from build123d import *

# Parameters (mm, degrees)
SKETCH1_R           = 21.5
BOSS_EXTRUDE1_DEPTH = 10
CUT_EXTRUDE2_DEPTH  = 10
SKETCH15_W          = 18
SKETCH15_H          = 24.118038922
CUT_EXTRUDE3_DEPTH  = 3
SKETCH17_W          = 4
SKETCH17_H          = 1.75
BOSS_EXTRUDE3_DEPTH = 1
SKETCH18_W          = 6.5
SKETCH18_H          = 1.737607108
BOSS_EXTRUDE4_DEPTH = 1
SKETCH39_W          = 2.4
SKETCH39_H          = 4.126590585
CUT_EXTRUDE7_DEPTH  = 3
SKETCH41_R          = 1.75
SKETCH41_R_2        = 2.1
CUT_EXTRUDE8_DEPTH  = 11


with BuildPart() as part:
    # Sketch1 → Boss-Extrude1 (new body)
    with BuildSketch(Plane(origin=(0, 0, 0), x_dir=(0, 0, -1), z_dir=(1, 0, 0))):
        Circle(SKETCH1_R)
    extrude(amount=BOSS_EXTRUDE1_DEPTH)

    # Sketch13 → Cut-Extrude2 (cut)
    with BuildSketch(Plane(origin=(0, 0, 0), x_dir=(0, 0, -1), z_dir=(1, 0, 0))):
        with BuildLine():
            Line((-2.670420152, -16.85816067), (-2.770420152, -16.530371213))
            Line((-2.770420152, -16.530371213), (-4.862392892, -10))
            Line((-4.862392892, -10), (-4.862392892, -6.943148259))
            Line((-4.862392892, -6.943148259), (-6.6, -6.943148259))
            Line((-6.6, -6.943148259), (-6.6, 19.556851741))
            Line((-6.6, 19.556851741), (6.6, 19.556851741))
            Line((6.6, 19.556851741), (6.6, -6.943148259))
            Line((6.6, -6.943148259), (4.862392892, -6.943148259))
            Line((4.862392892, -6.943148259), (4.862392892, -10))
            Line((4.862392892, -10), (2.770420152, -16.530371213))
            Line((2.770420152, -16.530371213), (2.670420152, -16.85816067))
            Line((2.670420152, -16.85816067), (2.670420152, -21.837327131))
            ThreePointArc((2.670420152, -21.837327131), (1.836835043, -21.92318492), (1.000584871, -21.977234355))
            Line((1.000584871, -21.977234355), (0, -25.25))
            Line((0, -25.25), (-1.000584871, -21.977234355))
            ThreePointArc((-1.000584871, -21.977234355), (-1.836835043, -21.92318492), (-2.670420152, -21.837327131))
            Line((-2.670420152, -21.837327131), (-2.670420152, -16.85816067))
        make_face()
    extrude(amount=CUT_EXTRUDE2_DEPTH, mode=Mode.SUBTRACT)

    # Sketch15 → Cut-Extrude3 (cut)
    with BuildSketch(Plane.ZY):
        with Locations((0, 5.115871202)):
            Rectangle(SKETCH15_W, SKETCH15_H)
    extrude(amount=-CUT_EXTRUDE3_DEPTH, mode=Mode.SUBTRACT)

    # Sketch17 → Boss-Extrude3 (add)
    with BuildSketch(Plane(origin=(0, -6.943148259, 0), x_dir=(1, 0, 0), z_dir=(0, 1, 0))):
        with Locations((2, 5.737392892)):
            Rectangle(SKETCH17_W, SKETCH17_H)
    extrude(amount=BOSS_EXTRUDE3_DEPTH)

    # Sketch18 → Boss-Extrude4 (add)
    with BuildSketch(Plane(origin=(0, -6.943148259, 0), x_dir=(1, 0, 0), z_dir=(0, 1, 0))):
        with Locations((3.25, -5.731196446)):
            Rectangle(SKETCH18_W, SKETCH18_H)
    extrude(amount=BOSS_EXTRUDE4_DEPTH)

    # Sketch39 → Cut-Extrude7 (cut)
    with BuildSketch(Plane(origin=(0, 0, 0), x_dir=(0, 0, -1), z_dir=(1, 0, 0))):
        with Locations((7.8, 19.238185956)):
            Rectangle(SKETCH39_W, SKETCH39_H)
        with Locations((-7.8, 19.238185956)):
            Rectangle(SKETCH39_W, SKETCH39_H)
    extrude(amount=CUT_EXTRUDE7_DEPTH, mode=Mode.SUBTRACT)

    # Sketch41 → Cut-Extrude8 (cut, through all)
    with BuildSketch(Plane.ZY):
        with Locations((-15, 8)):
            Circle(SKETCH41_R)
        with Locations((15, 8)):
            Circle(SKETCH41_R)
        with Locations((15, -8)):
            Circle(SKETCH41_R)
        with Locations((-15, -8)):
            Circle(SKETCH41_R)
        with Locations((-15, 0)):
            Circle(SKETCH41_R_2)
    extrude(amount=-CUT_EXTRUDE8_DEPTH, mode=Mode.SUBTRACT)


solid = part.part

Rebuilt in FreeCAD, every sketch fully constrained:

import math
import FreeCAD as App
import Part
import Sketcher
from FreeCAD import Vector
Q = App.Units.Quantity


def add_polygon(sketch, points):
    """Adds a closed chain of lines whose ends are joined by coincident constraints."""
    first, n = sketch.GeometryCount, len(points)
    for a, b in zip(points, points[1:] + points[:1]):
        sketch.addGeometry(Part.LineSegment(App.Vector(*a, 0), App.Vector(*b, 0)), False)
    for i in range(n):
        sketch.addConstraint(Sketcher.Constraint("Coincident", first + i, 2, first + (i + 1) % n, 1))

doc = App.newDocument("Part")
body = doc.addObject("PartDesign::Body", "Body")

# Sketch on YZ plane
sketch1 = body.newObject("Sketcher::SketchObject", "Sketch")
sketch1.AttachmentSupport = (doc.getObject("YZ_Plane"), [""])
sketch1.MapMode = "FlatFace"
sketch1.addGeometry(Part.Circle(Vector(0, 0, 0), Vector(0, 0, 1), 21.5), False)
sketch1.addConstraint([
    Sketcher.Constraint("Coincident", 0, 3, -1, 1),
    Sketcher.Constraint("Diameter", 0, 43.0),
])
pad1 = body.newObject("PartDesign::Pad", "Pad")
pad1.Profile = sketch1
pad1.Length = 10

# Sketch on YZ plane
sketch2 = body.newObject("Sketcher::SketchObject", "Sketch001")
sketch2.AttachmentSupport = (doc.getObject("YZ_Plane"), [""])
sketch2.MapMode = "FlatFace"
sketch2.addGeometry([
    Part.LineSegment(Vector(-16.530371, 2.77042, 0), Vector(-16.858161, 2.67042, 0)),  # 0
    Part.LineSegment(Vector(-16.858161, 2.67042, 0), Vector(-21.837327, 2.67042, 0)),  # 1
    Part.ArcOfCircle(Part.Circle(Vector(0, 0, 0), Vector(0, 0, 1), 22), math.radians(173.028089), math.radians(177.393224)),  # 2
    Part.LineSegment(Vector(-21.977234, 1.000585, 0), Vector(-25.25, 0, 0)),  # 3
    Part.LineSegment(Vector(-25.25, 0, 0), Vector(-21.977234, -1.000585, 0)),  # 4
    Part.ArcOfCircle(Part.Circle(Vector(0, 0, 0), Vector(0, 0, 1), 22), math.radians(-177.393224), math.radians(-173.028089)),  # 5
    Part.LineSegment(Vector(-21.837327, -2.67042, 0), Vector(-16.858161, -2.67042, 0)),  # 6
    Part.LineSegment(Vector(-16.858161, -2.67042, 0), Vector(-16.530371, -2.77042, 0)),  # 7
    Part.LineSegment(Vector(-16.530371, -2.77042, 0), Vector(-10, -4.862393, 0)),  # 8
    Part.LineSegment(Vector(-10, -4.862393, 0), Vector(-6.943148, -4.862393, 0)),  # 9
    Part.LineSegment(Vector(-6.943148, -4.862393, 0), Vector(-6.943148, -6.6, 0)),  # 10
    Part.LineSegment(Vector(-6.943148, -6.6, 0), Vector(19.556852, -6.6, 0)),  # 11
    Part.LineSegment(Vector(19.556852, -6.6, 0), Vector(19.556852, 6.6, 0)),  # 12
    Part.LineSegment(Vector(19.556852, 6.6, 0), Vector(-6.943148, 6.6, 0)),  # 13
    Part.LineSegment(Vector(-6.943148, 6.6, 0), Vector(-6.943148, 4.862393, 0)),  # 14
    Part.LineSegment(Vector(-6.943148, 4.862393, 0), Vector(-10, 4.862393, 0)),  # 15
    Part.LineSegment(Vector(-10, 4.862393, 0), Vector(-16.530371, 2.77042, 0)),  # 16
], False)
sketch2.addConstraint([
    Sketcher.Constraint("Coincident", 0, 2, 1, 1),
    Sketcher.Constraint("Coincident", 1, 2, 2, 1),
    Sketcher.Constraint("Coincident", 2, 2, 3, 1),
    Sketcher.Constraint("Coincident", 3, 2, 4, 1),
    Sketcher.Constraint("Coincident", 4, 2, 5, 1),
    Sketcher.Constraint("Coincident", 5, 2, 6, 1),
    Sketcher.Constraint("Coincident", 6, 2, 7, 1),
    Sketcher.Constraint("Coincident", 7, 2, 8, 1),
    Sketcher.Constraint("Coincident", 8, 2, 9, 1),
    Sketcher.Constraint("Coincident", 9, 2, 10, 1),
    Sketcher.Constraint("Coincident", 10, 2, 11, 1),
    Sketcher.Constraint("Coincident", 11, 2, 12, 1),
    Sketcher.Constraint("Coincident", 12, 2, 13, 1),
    Sketcher.Constraint("Coincident", 13, 2, 14, 1),
    Sketcher.Constraint("Coincident", 14, 2, 15, 1),
    Sketcher.Constraint("Coincident", 15, 2, 16, 1),
    Sketcher.Constraint("Coincident", 16, 2, 0, 1),
    Sketcher.Constraint("Horizontal", 1),
    Sketcher.Constraint("Horizontal", 6),
    Sketcher.Constraint("Horizontal", 9),
    Sketcher.Constraint("Vertical", 10),
    Sketcher.Constraint("Horizontal", 11),
    Sketcher.Constraint("Vertical", 12),
    Sketcher.Constraint("Horizontal", 13),
    Sketcher.Constraint("Vertical", 14),
    Sketcher.Constraint("Horizontal", 15),
    Sketcher.Constraint("Coincident", 2, 3, -1, 1),
    Sketcher.Constraint("Coincident", 5, 3, -1, 1),
    Sketcher.Constraint("Equal", 2, 5),
    Sketcher.Constraint("Symmetric", 0, 2, 6, 2, -1),
    Sketcher.Constraint("Symmetric", 10, 2, 13, 2, -1),
    Sketcher.Constraint("Symmetric", 8, 2, 15, 2, -1),
    Sketcher.Constraint("Symmetric", 7, 2, 16, 2, -1),
    Sketcher.Constraint("PointOnObject", 3, 2, -1),
    Sketcher.Constraint("Vertical", 2, 2, 4, 2),
    Sketcher.Constraint("Radius", 2, 22.0),
    Sketcher.Constraint("Angle", 3, Q("-163 deg")),
    Sketcher.Constraint("DistanceX", 11, 1, 11, 2, 26.5),
    Sketcher.Constraint("DistanceY", 12, 1, 12, 2, 13.2),
    Sketcher.Constraint("DistanceX", 8, 2, -1, 1, 10.0),
    Sketcher.Constraint("DistanceY", 7, 2, 6, 2, 0.1),
    Sketcher.Constraint("DistanceX", 3, 2, -1, 1, 25.25),
    Sketcher.Constraint("DistanceX", 9, 1, 9, 2, 3.056852),
    Sketcher.Constraint("DistanceX", 1, 2, 1, 1, 4.979166),
    Sketcher.Constraint("DistanceY", 10, 2, 10, 1, 1.737607),
    Sketcher.Constraint("DistanceX", 0, 2, -1, 1, 16.858161),
    Sketcher.Constraint("DistanceX", 7, 2, -1, 1, 16.530371),
])
pocket1 = body.newObject("PartDesign::Pocket", "Pocket")
pocket1.Profile = sketch2
pocket1.Length = 10
pocket1.Reversed = True

# Sketch on YZ plane
sketch3 = body.newObject("Sketcher::SketchObject", "Sketch002")
sketch3.AttachmentSupport = (doc.getObject("YZ_Plane"), [""])
sketch3.MapMode = "FlatFace"
add_polygon(sketch3, [(17.174891, -9), (-6.943148, -9), (-6.943148, 9), (17.174891, 9)])  # lines 0-3
sketch3.addConstraint([
    Sketcher.Constraint("Horizontal", 0),
    Sketcher.Constraint("Vertical", 1),
    Sketcher.Constraint("Horizontal", 2),
    Sketcher.Constraint("Vertical", 3),
    Sketcher.Constraint("DistanceY", 1, 1, 1, 2, 18.0),
    Sketcher.Constraint("DistanceY", 0, 2, -1, 1, 9.0),
    Sketcher.Constraint("DistanceX", 0, 2, 0, 1, 24.118039),
    Sketcher.Constraint("DistanceX", 0, 2, -1, 1, 6.943148),
])
pocket2 = body.newObject("PartDesign::Pocket", "Pocket001")
pocket2.Profile = sketch3
pocket2.Length = 3
pocket2.Reversed = True

# Sketch on XZ plane
sketch4 = body.newObject("Sketcher::SketchObject", "Sketch003")
sketch4.AttachmentSupport = (doc.getObject("XZ_Plane"), [""])
sketch4.MapMode = "FlatFace"
sketch4.AttachmentOffset = App.Placement(Vector(0, 0, 6.943148), App.Rotation())
add_polygon(sketch4, [(0, -6.612393), (0, -4.862393), (4, -4.862393), (4, -6.612393)])  # lines 0-3
sketch4.addConstraint([
    Sketcher.Constraint("Vertical", 0),
    Sketcher.Constraint("Horizontal", 1),
    Sketcher.Constraint("Vertical", 2),
    Sketcher.Constraint("Horizontal", 3),
    Sketcher.Constraint("PointOnObject", 0, 2, -2),
    Sketcher.Constraint("DistanceX", 1, 1, 1, 2, 4.0),
    Sketcher.Constraint("DistanceY", 0, 1, 0, 2, 1.75),
    Sketcher.Constraint("DistanceY", 0, 2, -1, 1, 4.862393),
])
pad2 = body.newObject("PartDesign::Pad", "Pad001")
pad2.Profile = sketch4
pad2.Length = 1
pad2.Reversed = True

# Sketch on XZ plane
sketch5 = body.newObject("Sketcher::SketchObject", "Sketch004")
sketch5.AttachmentSupport = (doc.getObject("XZ_Plane"), [""])
sketch5.MapMode = "FlatFace"
sketch5.AttachmentOffset = App.Placement(Vector(0, 0, 6.943148), App.Rotation())
add_polygon(sketch5, [(0, 4.862393), (0, 6.6), (6.5, 6.6), (6.5, 4.862393)])  # lines 0-3
sketch5.addConstraint([
    Sketcher.Constraint("Vertical", 0),
    Sketcher.Constraint("Horizontal", 1),
    Sketcher.Constraint("Vertical", 2),
    Sketcher.Constraint("Horizontal", 3),
    Sketcher.Constraint("PointOnObject", 0, 2, -2),
    Sketcher.Constraint("DistanceX", 1, 1, 1, 2, 6.5),
    Sketcher.Constraint("DistanceY", -1, 1, 0, 2, 6.6),
    Sketcher.Constraint("DistanceY", 0, 1, 0, 2, 1.737607),
])
pad3 = body.newObject("PartDesign::Pad", "Pad002")
pad3.Profile = sketch5
pad3.Length = 1
pad3.Reversed = True

# Sketch on YZ plane
sketch6 = body.newObject("Sketcher::SketchObject", "Sketch005")
sketch6.AttachmentSupport = (doc.getObject("YZ_Plane"), [""])
sketch6.MapMode = "FlatFace"
add_polygon(sketch6, [(21.301481, -6.6), (17.174891, -6.6), (17.174891, -9), (21.301481, -9)])  # lines 0-3
add_polygon(sketch6, [(21.301481, 9), (17.174891, 9), (17.174891, 6.6), (21.301481, 6.6)])  # lines 4-7
sketch6.addConstraint([
    Sketcher.Constraint("Horizontal", 0),
    Sketcher.Constraint("Vertical", 1),
    Sketcher.Constraint("Horizontal", 2),
    Sketcher.Constraint("Vertical", 3),
    Sketcher.Constraint("Horizontal", 4),
    Sketcher.Constraint("Vertical", 5),
    Sketcher.Constraint("Horizontal", 6),
    Sketcher.Constraint("Vertical", 7),
    Sketcher.Constraint("Symmetric", 1, 2, 4, 2, -1),
    Sketcher.Constraint("Symmetric", 3, 2, 6, 2, -1),
    Sketcher.Constraint("DistanceY", 1, 2, 1, 1, 2.4),
    Sketcher.Constraint("DistanceY", 1, 2, -1, 1, 9.0),
    Sketcher.Constraint("DistanceX", 0, 2, 0, 1, 4.126591),
    Sketcher.Constraint("DistanceX", -1, 1, 0, 2, 17.174891),
])
pocket3 = body.newObject("PartDesign::Pocket", "Pocket002")
pocket3.Profile = sketch6
pocket3.Length = 3
pocket3.Reversed = True

# Sketch on YZ plane
sketch7 = body.newObject("Sketcher::SketchObject", "Sketch006")
sketch7.AttachmentSupport = (doc.getObject("YZ_Plane"), [""])
sketch7.MapMode = "FlatFace"
sketch7.addGeometry([
    Part.Circle(Vector(8, -15, 0), Vector(0, 0, 1), 1.75),  # 0
    Part.Circle(Vector(8, 15, 0), Vector(0, 0, 1), 1.75),  # 1
    Part.Circle(Vector(-8, 15, 0), Vector(0, 0, 1), 1.75),  # 2
    Part.Circle(Vector(-8, -15, 0), Vector(0, 0, 1), 1.75),  # 3
    Part.Circle(Vector(0, -15, 0), Vector(0, 0, 1), 2.1),  # 4
], False)
sketch7.addConstraint([
    Sketcher.Constraint("Equal", 0, 1),
    Sketcher.Constraint("Equal", 1, 2),
    Sketcher.Constraint("Equal", 2, 3),
    Sketcher.Constraint("Symmetric", 0, 3, 2, 3, -1, 1),
    Sketcher.Constraint("Symmetric", 1, 3, 3, 3, -1, 1),
    Sketcher.Constraint("Symmetric", 1, 3, 2, 3, -2),
    Sketcher.Constraint("PointOnObject", 4, 3, -2),
    Sketcher.Constraint("Horizontal", 3, 3, 4, 3),
    Sketcher.Constraint("Diameter", 0, 3.5),
    Sketcher.Constraint("Diameter", 4, 4.2),
    Sketcher.Constraint("DistanceX", -1, 1, 0, 3, 8.0),
    Sketcher.Constraint("DistanceY", 0, 3, -1, 1, 15.0),
])
pocket4 = body.newObject("PartDesign::Pocket", "Pocket003")
pocket4.Profile = sketch7
pocket4.Type = "ThroughAll"
pocket4.Reversed = True

doc.recompute()
